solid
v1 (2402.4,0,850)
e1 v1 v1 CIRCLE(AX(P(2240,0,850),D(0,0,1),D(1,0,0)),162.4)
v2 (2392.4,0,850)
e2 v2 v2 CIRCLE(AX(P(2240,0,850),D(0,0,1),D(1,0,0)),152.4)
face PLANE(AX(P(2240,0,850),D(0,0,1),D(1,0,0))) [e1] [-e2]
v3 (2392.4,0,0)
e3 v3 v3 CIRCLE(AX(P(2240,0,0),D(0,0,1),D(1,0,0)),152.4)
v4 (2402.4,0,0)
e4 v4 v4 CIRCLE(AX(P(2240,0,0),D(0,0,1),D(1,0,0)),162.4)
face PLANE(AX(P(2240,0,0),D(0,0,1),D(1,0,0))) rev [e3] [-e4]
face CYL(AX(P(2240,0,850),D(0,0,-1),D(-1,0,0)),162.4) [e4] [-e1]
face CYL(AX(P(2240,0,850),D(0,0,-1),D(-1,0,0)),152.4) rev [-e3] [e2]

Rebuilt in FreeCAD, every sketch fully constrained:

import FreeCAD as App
import Part
import Sketcher
Q = App.Units.Quantity

doc = App.newDocument("Part")
body = doc.addObject("PartDesign::Body", "Body")

# Sketch on XY plane
sketch1 = body.newObject("Sketcher::SketchObject", "Sketch")
sketch1.AttachmentSupport = (doc.getObject("XY_Plane"), [""])
sketch1.MapMode = "FlatFace"
sketch1.addGeometry([
    Part.Circle(App.Vector(2240, 0, 0), App.Vector(0, 0, 1), 162),
    Part.Circle(App.Vector(2240, 0, 0), App.Vector(0, 0, 1), 152),
], False)
sketch1.addConstraint([
    Sketcher.Constraint("Coincident", 1, 3, 0, 3),
    Sketcher.Constraint("PointOnObject", 0, 3, -1),
    Sketcher.Constraint("Diameter", 0, Q("324.8 mm")),
    Sketcher.Constraint("Diameter", 1, Q("304.8 mm")),
    Sketcher.Constraint("DistanceX", -1, 1, 0, 3, Q("2240 mm")),
])
pad1 = body.newObject("PartDesign::Pad", "Pad")
pad1.Profile = sketch1
pad1.Length = 850

doc.recompute()
